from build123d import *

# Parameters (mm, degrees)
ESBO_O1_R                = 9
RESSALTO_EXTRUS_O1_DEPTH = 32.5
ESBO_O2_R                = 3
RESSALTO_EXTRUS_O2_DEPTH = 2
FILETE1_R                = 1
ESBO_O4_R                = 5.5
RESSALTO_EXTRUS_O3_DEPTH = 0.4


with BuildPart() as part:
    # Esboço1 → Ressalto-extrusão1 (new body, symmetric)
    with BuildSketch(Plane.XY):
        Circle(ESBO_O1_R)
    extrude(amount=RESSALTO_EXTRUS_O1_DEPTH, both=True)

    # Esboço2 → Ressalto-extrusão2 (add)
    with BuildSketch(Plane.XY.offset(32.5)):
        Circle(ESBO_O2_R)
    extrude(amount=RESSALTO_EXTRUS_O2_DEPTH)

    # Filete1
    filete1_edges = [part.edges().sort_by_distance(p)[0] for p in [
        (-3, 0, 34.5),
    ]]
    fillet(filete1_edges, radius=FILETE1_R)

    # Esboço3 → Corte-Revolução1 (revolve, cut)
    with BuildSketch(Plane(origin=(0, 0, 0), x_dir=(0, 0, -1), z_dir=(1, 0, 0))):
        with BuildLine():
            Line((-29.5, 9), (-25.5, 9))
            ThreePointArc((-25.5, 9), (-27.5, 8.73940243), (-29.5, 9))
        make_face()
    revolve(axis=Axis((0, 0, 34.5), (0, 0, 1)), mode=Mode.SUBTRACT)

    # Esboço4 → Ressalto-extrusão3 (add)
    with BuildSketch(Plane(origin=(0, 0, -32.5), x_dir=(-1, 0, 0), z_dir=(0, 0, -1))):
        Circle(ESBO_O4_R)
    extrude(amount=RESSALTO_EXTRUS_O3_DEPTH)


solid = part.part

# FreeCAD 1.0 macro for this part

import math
import FreeCAD as App
import Part
import Sketcher
from FreeCAD import Vector
Q = App.Units.Quantity


def edges_at(feature, points):
    """Names of the edges that pass closest to the given points."""
    edges = feature.Shape.Edges
    near = lambda p: min(range(len(edges)), key=lambda i: edges[i].distToShape(Part.Vertex(*p))[0])
    return sorted({f"Edge{near(p) + 1}" for p in points})

doc = App.newDocument("Part")
body = doc.addObject("PartDesign::Body", "Body")

sketch1 = doc.addObject("Sketcher::SketchObject", "Sketch")
body.addObject(sketch1)
sketch1.AttachmentSupport = (doc.XY_Plane, [""])
sketch1.MapMode = "FlatFace"
sketch1.addGeometry(Part.Circle(Vector(0, 0, 0), Vector(0, 0, 1), 9), False)
sketch1.addConstraint(Sketcher.Constraint("Coincident", 0, 3, -1, 1))
sketch1.addConstraint(Sketcher.Constraint("Diameter", 0, Q("18 mm")))
pad1 = doc.addObject("PartDesign::Pad", "Pad")
body.addObject(pad1)
pad1.Profile = sketch1
pad1.Length = 65
pad1.Midplane = True

sketch2 = doc.addObject("Sketcher::SketchObject", "Sketch001")
body.addObject(sketch2)
sketch2.AttachmentSupport = (doc.XY_Plane, [""])
sketch2.MapMode = "FlatFace"
sketch2.AttachmentOffset = App.Placement(Vector(0, 0, 32.5), App.Rotation())
sketch2.addGeometry(Part.Circle(Vector(0, 0, 0), Vector(0, 0, 1), 3), False)
sketch2.addConstraint(Sketcher.Constraint("Coincident", 0, 3, -1, 1))
sketch2.addConstraint(Sketcher.Constraint("Diameter", 0, Q("6 mm")))
pad2 = doc.addObject("PartDesign::Pad", "Pad001")
body.addObject(pad2)
pad2.Profile = sketch2
pad2.Length = 2
doc.recompute()

fillet = doc.addObject("PartDesign::Fillet", "Fillet")
body.addObject(fillet)
fillet.Base = (pad2, edges_at(pad2, [(-3, 0, 34.5)]))
fillet.Radius = 1

sketch3 = doc.addObject("Sketcher::SketchObject", "Sketch002")
body.addObject(sketch3)
sketch3.AttachmentSupport = (doc.YZ_Plane, [""])
sketch3.MapMode = "FlatFace"
sketch3.addGeometry(Part.LineSegment(Vector(9, 25.5, 0), Vector(9, 29.5, 0)), False)
sketch3.addGeometry(Part.ArcOfCircle(Part.Circle(Vector(16.5, 27.5, 0), Vector(0, 0, 1), 7.8), math.radians(165), math.radians(195)), False)
sketch3.addConstraint(Sketcher.Constraint("Coincident", 0, 1, 1, 2))
sketch3.addConstraint(Sketcher.Constraint("Coincident", 1, 1, 0, 2))
sketch3.addConstraint(Sketcher.Constraint("Vertical", 0))
sketch3.addConstraint(Sketcher.Constraint("DistanceY", 0, 1, 0, 2, Q("4 mm")))
sketch3.addConstraint(Sketcher.Constraint("DistanceX", -1, 1, 0, 1, Q("9 mm")))
sketch3.addConstraint(Sketcher.Constraint("DistanceY", -1, 1, 1, 3, Q("27.5 mm")))
sketch3.addConstraint(Sketcher.Constraint("Radius", 1, Q("7.804967 mm")))
groove = doc.addObject("PartDesign::Groove", "Groove")
body.addObject(groove)
groove.Profile = sketch3
groove.ReferenceAxis = (sketch3, ["V_Axis"])
groove.Angle = 360

sketch4 = doc.addObject("Sketcher::SketchObject", "Sketch003")
body.addObject(sketch4)
sketch4.AttachmentSupport = (doc.XY_Plane, [""])
sketch4.MapMode = "FlatFace"
sketch4.AttachmentOffset = App.Placement(Vector(0, 0, -32.5), App.Rotation())
sketch4.addGeometry(Part.Circle(Vector(0, 0, 0), Vector(0, 0, 1), 6), False)
sketch4.addConstraint(Sketcher.Constraint("Coincident", 0, 3, -1, 1))
sketch4.addConstraint(Sketcher.Constraint("Diameter", 0, Q("11 mm")))
pad3 = doc.addObject("PartDesign::Pad", "Pad002")
body.addObject(pad3)
pad3.Profile = sketch4
pad3.Length = 0.4
pad3.Reversed = True

doc.recompute()
